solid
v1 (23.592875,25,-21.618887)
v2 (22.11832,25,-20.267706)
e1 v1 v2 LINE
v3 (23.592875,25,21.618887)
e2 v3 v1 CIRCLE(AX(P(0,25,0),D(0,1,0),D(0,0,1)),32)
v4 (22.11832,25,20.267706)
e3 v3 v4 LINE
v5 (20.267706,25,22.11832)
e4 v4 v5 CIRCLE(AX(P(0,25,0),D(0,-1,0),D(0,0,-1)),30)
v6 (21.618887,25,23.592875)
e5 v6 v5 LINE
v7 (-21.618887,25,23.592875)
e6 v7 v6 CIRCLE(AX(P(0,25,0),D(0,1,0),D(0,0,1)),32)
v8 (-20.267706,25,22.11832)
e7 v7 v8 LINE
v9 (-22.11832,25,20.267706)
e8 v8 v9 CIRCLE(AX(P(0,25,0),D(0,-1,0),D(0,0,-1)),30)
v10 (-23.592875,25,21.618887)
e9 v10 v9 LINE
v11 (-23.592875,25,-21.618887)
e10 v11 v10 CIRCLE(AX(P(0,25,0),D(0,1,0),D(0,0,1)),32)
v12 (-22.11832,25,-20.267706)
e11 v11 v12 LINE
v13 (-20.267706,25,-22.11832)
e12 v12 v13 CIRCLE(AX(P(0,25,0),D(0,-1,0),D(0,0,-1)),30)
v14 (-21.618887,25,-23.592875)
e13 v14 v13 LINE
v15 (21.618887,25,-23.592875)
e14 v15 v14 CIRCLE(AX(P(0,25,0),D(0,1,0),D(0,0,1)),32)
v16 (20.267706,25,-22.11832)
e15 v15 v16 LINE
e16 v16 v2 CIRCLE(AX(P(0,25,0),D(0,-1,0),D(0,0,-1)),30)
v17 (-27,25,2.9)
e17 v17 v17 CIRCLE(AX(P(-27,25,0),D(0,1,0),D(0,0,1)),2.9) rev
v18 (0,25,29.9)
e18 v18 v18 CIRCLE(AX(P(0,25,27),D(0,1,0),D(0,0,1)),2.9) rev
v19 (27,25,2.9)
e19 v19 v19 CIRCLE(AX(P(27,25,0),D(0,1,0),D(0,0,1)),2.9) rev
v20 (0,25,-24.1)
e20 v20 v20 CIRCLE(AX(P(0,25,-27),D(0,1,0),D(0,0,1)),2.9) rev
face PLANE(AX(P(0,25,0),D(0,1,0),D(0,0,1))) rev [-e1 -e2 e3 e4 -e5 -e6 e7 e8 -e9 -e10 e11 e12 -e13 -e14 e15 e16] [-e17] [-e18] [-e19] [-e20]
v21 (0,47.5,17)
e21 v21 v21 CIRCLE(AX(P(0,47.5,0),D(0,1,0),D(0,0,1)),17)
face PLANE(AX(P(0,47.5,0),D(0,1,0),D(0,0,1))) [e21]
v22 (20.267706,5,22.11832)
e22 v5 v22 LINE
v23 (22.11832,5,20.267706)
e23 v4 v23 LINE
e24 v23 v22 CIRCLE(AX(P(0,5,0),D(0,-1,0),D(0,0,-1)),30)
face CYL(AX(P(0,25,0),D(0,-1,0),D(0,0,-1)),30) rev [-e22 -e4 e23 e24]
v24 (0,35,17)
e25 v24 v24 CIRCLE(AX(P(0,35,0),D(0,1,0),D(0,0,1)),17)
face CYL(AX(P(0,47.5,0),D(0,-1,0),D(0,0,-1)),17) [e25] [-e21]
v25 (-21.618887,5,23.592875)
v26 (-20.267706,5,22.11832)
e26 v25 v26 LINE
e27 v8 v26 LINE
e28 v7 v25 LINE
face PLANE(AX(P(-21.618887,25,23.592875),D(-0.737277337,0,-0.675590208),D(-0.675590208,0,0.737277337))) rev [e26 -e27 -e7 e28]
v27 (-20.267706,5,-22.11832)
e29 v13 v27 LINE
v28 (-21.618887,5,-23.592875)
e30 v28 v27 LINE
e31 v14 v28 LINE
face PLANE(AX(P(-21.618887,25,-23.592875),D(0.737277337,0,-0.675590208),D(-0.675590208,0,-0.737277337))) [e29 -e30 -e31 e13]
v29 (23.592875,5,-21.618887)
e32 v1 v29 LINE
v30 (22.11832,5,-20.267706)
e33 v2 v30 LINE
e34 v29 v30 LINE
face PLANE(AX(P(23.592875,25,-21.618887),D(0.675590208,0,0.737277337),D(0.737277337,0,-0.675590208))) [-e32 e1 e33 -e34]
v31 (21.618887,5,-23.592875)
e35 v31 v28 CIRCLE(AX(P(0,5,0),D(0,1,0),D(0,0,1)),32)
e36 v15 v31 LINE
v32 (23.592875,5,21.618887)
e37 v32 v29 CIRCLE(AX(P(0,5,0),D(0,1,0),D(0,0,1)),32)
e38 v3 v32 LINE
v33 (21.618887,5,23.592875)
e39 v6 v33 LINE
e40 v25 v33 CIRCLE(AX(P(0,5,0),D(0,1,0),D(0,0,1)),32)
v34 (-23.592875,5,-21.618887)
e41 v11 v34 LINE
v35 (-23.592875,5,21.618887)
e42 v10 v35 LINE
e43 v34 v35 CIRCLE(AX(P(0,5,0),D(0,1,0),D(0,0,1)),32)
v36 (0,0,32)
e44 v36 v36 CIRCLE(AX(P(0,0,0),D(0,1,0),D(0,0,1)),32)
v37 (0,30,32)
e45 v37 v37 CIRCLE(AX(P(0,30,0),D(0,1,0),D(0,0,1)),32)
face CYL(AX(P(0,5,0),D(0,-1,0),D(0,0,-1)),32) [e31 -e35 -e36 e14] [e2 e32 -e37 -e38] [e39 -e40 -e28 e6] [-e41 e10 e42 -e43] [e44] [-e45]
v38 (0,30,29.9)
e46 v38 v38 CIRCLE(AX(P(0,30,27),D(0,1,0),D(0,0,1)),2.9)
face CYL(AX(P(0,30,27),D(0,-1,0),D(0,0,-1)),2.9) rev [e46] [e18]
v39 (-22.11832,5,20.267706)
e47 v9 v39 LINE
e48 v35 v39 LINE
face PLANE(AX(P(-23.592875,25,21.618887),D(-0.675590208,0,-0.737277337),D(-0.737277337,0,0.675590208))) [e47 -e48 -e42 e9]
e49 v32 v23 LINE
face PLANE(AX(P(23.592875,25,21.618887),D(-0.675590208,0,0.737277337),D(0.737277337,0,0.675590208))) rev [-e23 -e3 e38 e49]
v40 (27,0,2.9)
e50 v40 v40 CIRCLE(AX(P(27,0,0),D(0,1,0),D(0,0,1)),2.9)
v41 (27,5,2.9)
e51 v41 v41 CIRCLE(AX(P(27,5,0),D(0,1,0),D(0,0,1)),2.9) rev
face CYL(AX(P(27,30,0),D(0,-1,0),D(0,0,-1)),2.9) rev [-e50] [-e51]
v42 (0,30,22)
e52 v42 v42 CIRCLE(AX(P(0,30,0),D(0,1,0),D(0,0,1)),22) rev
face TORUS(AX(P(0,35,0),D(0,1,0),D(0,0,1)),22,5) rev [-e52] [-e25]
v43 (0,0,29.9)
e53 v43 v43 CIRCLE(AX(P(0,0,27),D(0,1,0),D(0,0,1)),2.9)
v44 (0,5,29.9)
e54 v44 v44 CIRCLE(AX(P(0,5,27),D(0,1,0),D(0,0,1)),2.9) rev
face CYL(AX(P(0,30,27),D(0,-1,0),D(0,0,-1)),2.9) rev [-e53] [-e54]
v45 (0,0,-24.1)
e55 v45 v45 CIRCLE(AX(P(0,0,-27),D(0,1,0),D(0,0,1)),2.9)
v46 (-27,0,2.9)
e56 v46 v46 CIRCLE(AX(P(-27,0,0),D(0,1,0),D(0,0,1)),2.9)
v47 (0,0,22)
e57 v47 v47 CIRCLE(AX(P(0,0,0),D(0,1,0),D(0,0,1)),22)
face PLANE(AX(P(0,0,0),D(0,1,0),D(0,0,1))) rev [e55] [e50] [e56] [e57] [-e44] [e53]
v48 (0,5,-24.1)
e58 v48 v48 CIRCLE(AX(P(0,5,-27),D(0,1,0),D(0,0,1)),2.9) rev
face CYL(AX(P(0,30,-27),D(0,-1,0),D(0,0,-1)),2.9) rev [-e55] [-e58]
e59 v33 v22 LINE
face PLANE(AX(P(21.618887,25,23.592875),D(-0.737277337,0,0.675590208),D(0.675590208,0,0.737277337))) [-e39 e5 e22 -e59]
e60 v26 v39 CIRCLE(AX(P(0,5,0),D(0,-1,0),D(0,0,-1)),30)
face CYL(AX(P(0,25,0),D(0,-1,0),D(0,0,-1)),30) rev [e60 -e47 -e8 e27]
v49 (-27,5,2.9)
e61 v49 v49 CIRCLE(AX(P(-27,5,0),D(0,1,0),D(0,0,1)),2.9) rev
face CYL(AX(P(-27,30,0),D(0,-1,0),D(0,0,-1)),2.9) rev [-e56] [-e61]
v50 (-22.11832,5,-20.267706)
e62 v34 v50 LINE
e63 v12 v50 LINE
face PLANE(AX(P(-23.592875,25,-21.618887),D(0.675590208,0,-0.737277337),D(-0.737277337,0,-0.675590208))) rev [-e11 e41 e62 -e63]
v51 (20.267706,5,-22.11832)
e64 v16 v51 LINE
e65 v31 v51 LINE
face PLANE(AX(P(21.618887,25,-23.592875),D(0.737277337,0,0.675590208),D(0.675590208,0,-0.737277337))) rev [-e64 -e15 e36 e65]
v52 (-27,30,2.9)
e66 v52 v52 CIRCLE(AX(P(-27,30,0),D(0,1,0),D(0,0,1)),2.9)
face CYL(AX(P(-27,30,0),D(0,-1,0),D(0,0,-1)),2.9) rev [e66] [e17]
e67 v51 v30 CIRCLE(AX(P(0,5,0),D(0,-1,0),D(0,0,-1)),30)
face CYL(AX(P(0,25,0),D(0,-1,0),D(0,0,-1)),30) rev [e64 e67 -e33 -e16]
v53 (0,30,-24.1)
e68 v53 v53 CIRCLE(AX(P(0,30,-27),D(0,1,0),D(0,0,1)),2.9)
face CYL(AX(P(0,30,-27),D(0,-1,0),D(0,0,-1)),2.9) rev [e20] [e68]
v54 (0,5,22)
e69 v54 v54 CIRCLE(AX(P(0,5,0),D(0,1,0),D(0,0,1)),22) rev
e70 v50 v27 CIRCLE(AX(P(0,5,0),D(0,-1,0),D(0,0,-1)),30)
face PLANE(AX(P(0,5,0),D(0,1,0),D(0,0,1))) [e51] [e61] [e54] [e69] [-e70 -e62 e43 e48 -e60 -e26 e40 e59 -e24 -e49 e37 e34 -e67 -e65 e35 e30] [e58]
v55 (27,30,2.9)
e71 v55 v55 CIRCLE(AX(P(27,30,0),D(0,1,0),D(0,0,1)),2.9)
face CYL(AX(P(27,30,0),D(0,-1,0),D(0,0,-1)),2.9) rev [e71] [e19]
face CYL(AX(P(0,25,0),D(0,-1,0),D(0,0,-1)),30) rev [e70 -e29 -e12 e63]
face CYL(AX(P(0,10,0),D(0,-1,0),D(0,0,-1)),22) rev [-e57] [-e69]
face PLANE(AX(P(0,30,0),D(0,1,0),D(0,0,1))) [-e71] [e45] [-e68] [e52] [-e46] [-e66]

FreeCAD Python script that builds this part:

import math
import FreeCAD as App
import Part
import Sketcher

V = App.Vector
Q = App.Units.Quantity


def edges_at(feature, points):
    """Names of the edges that pass closest to the given points."""
    edges = feature.Shape.Edges
    near = lambda p: min(range(len(edges)), key=lambda i: edges[i].distToShape(Part.Vertex(*p))[0])
    return sorted({f"Edge{near(p) + 1}" for p in points})

doc = App.newDocument("Part")
body = doc.addObject("PartDesign::Body", "Body")

# Sketch on XZ plane
sketch1 = doc.addObject("Sketcher::SketchObject", "Sketch")
body.addObject(sketch1)
sketch1.AttachmentSupport = (doc.XZ_Plane, [""])
sketch1.MapMode = "FlatFace"
sketch1.addGeometry(Part.Circle(V(0, 0, 0), V(0, 0, 1), 32), False)
sketch1.addConstraint(Sketcher.Constraint("Coincident", 0, 3, -1, 1))
sketch1.addConstraint(Sketcher.Constraint("Diameter", 0, Q("64 mm")))
pad1 = doc.addObject("PartDesign::Pad", "Pad")
body.addObject(pad1)
pad1.Profile = sketch1
pad1.Length = 5
pad1.Reversed = True

# Sketch on XZ plane
sketch2 = doc.addObject("Sketcher::SketchObject", "Sketch001")
body.addObject(sketch2)
sketch2.AttachmentSupport = (doc.XZ_Plane, [""])
sketch2.MapMode = "FlatFace"
sketch2.AttachmentOffset = App.Placement(V(0, 0, -5), App.Rotation())
sketch2.addGeometry(Part.LineSegment(V(-23.6, -21.6, 0), V(-22.1, -20.3, 0)), False)
sketch2.addGeometry(Part.ArcOfCircle(Part.Circle(V(0, 0, 0), V(0, 0, 1), 30), math.radians(-137.5), math.radians(-132.5)), False)
sketch2.addGeometry(Part.LineSegment(V(-20.3, -22.1, 0), V(-21.6, -23.6, 0)), False)
sketch2.addGeometry(Part.ArcOfCircle(Part.Circle(V(0, 0, 0), V(0, 0, 1), 32), math.radians(-137.5), math.radians(-132.5)), False)
sketch2.addGeometry(Part.LineSegment(V(22.1, -20.3, 0), V(23.6, -21.6, 0)), False)
sketch2.addGeometry(Part.ArcOfCircle(Part.Circle(V(0, 0, 0), V(0, 0, 1), 32), math.radians(-47.5), math.radians(-42.5)), False)
sketch2.addGeometry(Part.LineSegment(V(21.6, -23.6, 0), V(20.3, -22.1, 0)), False)
sketch2.addGeometry(Part.ArcOfCircle(Part.Circle(V(0, 0, 0), V(0, 0, 1), 30), math.radians(-47.5), math.radians(-42.5)), False)
sketch2.addGeometry(Part.LineSegment(V(20.3, 22.1, 0), V(21.6, 23.6, 0)), False)
sketch2.addGeometry(Part.ArcOfCircle(Part.Circle(V(0, 0, 0), V(0, 0, 1), 32), math.radians(42.5), math.radians(47.5)), False)
sketch2.addGeometry(Part.LineSegment(V(23.6, 21.6, 0), V(22.1, 20.3, 0)), False)
sketch2.addGeometry(Part.ArcOfCircle(Part.Circle(V(0, 0, 0), V(0, 0, 1), 30), math.radians(42.5), math.radians(47.5)), False)
sketch2.addGeometry(Part.LineSegment(V(-22.1, 20.3, 0), V(-23.6, 21.6, 0)), False)
sketch2.addGeometry(Part.ArcOfCircle(Part.Circle(V(0, 0, 0), V(0, 0, 1), 32), math.radians(132.5), math.radians(137.5)), False)
sketch2.addGeometry(Part.LineSegment(V(-21.6, 23.6, 0), V(-20.3, 22.1, 0)), False)
sketch2.addGeometry(Part.ArcOfCircle(Part.Circle(V(0, 0, 0), V(0, 0, 1), 30), math.radians(132.5), math.radians(137.5)), False)
sketch2.addConstraint(Sketcher.Constraint("Coincident", 0, 2, 1, 1))
sketch2.addConstraint(Sketcher.Constraint("Coincident", 1, 2, 2, 1))
sketch2.addConstraint(Sketcher.Constraint("Coincident", 2, 2, 3, 2))
sketch2.addConstraint(Sketcher.Constraint("Coincident", 3, 1, 0, 1))
sketch2.addConstraint(Sketcher.Constraint("Coincident", 4, 2, 5, 2))
sketch2.addConstraint(Sketcher.Constraint("Coincident", 5, 1, 6, 1))
sketch2.addConstraint(Sketcher.Constraint("Coincident", 6, 2, 7, 1))
sketch2.addConstraint(Sketcher.Constraint("Coincident", 7, 2, 4, 1))
sketch2.addConstraint(Sketcher.Constraint("Coincident", 8, 2, 9, 2))
sketch2.addConstraint(Sketcher.Constraint("Coincident", 9, 1, 10, 1))
sketch2.addConstraint(Sketcher.Constraint("Coincident", 10, 2, 11, 1))
sketch2.addConstraint(Sketcher.Constraint("Coincident", 11, 2, 8, 1))
sketch2.addConstraint(Sketcher.Constraint("Coincident", 12, 2, 13, 2))
sketch2.addConstraint(Sketcher.Constraint("Coincident", 13, 1, 14, 1))
sketch2.addConstraint(Sketcher.Constraint("Coincident", 14, 2, 15, 1))
sketch2.addConstraint(Sketcher.Constraint("Coincident", 15, 2, 12, 1))
sketch2.addConstraint(Sketcher.Constraint("Coincident", 1, 3, -1, 1))
sketch2.addConstraint(Sketcher.Constraint("Coincident", 3, 3, -1, 1))
sketch2.addConstraint(Sketcher.Constraint("Coincident", 5, 3, -1, 1))
sketch2.addConstraint(Sketcher.Constraint("Coincident", 7, 3, -1, 1))
sketch2.addConstraint(Sketcher.Constraint("Coincident", 9, 3, -1, 1))
sketch2.addConstraint(Sketcher.Constraint("Coincident", 11, 3, -1, 1))
sketch2.addConstraint(Sketcher.Constraint("Coincident", 13, 3, -1, 1))
sketch2.addConstraint(Sketcher.Constraint("Coincident", 15, 3, -1, 1))
sketch2.addConstraint(Sketcher.Constraint("Equal", 3, 5))
sketch2.addConstraint(Sketcher.Constraint("Equal", 1, 7))
sketch2.addConstraint(Sketcher.Constraint("Equal", 5, 9))
sketch2.addConstraint(Sketcher.Constraint("Equal", 7, 11))
sketch2.addConstraint(Sketcher.Constraint("Equal", 9, 13))
sketch2.addConstraint(Sketcher.Constraint("Equal", 11, 15))
sketch2.addConstraint(Sketcher.Constraint("Perpendicular", 2, 4))
sketch2.addConstraint(Sketcher.Constraint("Perpendicular", 0, 6))
sketch2.addConstraint(Sketcher.Constraint("Perpendicular", 4, 8))
sketch2.addConstraint(Sketcher.Constraint("Perpendicular", 6, 10))
sketch2.addConstraint(Sketcher.Constraint("Perpendicular", 8, 12))
sketch2.addConstraint(Sketcher.Constraint("Perpendicular", 10, 14))
sketch2.addConstraint(Sketcher.Constraint("Horizontal", 3, 1, 4, 2))
sketch2.addConstraint(Sketcher.Constraint("Horizontal", 2, 2, 5, 1))
sketch2.addConstraint(Sketcher.Constraint("Horizontal", 1, 2, 6, 2))
sketch2.addConstraint(Sketcher.Constraint("Horizontal", 9, 1, 12, 2))
sketch2.addConstraint(Sketcher.Constraint("Horizontal", 8, 2, 13, 1))
sketch2.addConstraint(Sketcher.Constraint("Vertical", 5, 1, 8, 2))
sketch2.addConstraint(Sketcher.Constraint("Vertical", 4, 2, 9, 1))
sketch2.addConstraint(Sketcher.Constraint("Radius", 1, Q("29.999999 mm")))
sketch2.addConstraint(Sketcher.Constraint("Radius", 3, Q("32 mm")))
sketch2.addConstraint(Sketcher.Constraint("Angle", 0, Q("42.5 deg")))
sketch2.addConstraint(Sketcher.Constraint("DistanceX", 0, 2, -1, 1, Q("22.11832 mm")))
sketch2.addConstraint(Sketcher.Constraint("DistanceY", 1, 2, -1, 1, Q("22.11832 mm")))
pad2 = doc.addObject("PartDesign::Pad", "Pad001")
body.addObject(pad2)
pad2.Profile = sketch2
pad2.Length = 20
pad2.Reversed = True

# Sketch on XZ plane
sketch3 = doc.addObject("Sketcher::SketchObject", "Sketch002")
body.addObject(sketch3)
sketch3.AttachmentSupport = (doc.XZ_Plane, [""])
sketch3.MapMode = "FlatFace"
sketch3.AttachmentOffset = App.Placement(V(0, 0, -25), App.Rotation())
sketch3.addGeometry(Part.Circle(V(0, 0, 0), V(0, 0, 1), 32), False)
sketch3.addConstraint(Sketcher.Constraint("Coincident", 0, 3, -1, 1))
sketch3.addConstraint(Sketcher.Constraint("Diameter", 0, Q("64 mm")))
pad3 = doc.addObject("PartDesign::Pad", "Pad002")
body.addObject(pad3)
pad3.Profile = sketch3
pad3.Length = 5
pad3.Reversed = True

# Sketch on XZ plane
sketch4 = doc.addObject("Sketcher::SketchObject", "Sketch003")
body.addObject(sketch4)
sketch4.AttachmentSupport = (doc.XZ_Plane, [""])
sketch4.MapMode = "FlatFace"
sketch4.AttachmentOffset = App.Placement(V(0, 0, -5), App.Rotation())
sketch4.addGeometry(Part.Circle(V(27, 0, 0), V(0, 0, 1), 2.9), False)
sketch4.addGeometry(Part.Circle(V(0, 27, 0), V(0, 0, 1), 2.9), False)
sketch4.addGeometry(Part.Circle(V(0, -27, 0), V(0, 0, 1), 2.9), False)
sketch4.addGeometry(Part.Circle(V(-27, 0, 0), V(0, 0, 1), 2.9), False)
sketch4.addConstraint(Sketcher.Constraint("Equal", 0, 1))
sketch4.addConstraint(Sketcher.Constraint("Equal", 1, 2))
sketch4.addConstraint(Sketcher.Constraint("Equal", 2, 3))
sketch4.addConstraint(Sketcher.Constraint("Symmetric", 1, 3, 2, 3, -1, 1))
sketch4.addConstraint(Sketcher.Constraint("Symmetric", 0, 3, 3, 3, -1, 1))
sketch4.addConstraint(Sketcher.Constraint("PointOnObject", 0, 3, -1))
sketch4.addConstraint(Sketcher.Constraint("PointOnObject", 1, 3, -2))
sketch4.addConstraint(Sketcher.Constraint("Diameter", 0, Q("5.8 mm")))
sketch4.addConstraint(Sketcher.Constraint("DistanceX", -1, 1, 0, 3, Q("27 mm")))
sketch4.addConstraint(Sketcher.Constraint("DistanceY", -1, 1, 1, 3, Q("27 mm")))
pocket1 = doc.addObject("PartDesign::Pocket", "Pocket")
body.addObject(pocket1)
pocket1.Profile = sketch4
pocket1.Type = "ThroughAll"
pocket1.Midplane = True

# Sketch on XZ plane
sketch5 = doc.addObject("Sketcher::SketchObject", "Sketch004")
body.addObject(sketch5)
sketch5.AttachmentSupport = (doc.XZ_Plane, [""])
sketch5.MapMode = "FlatFace"
sketch5.addGeometry(Part.Circle(V(0, 0, 0), V(0, 0, 1), 22), False)
sketch5.addConstraint(Sketcher.Constraint("Coincident", 0, 3, -1, 1))
sketch5.addConstraint(Sketcher.Constraint("Diameter", 0, Q("44 mm")))
pocket2 = doc.addObject("PartDesign::Pocket", "Pocket001")
body.addObject(pocket2)
pocket2.Profile = sketch5
pocket2.Length = 10

# Sketch on XZ plane
sketch6 = doc.addObject("Sketcher::SketchObject", "Sketch005")
body.addObject(sketch6)
sketch6.AttachmentSupport = (doc.XZ_Plane, [""])
sketch6.MapMode = "FlatFace"
sketch6.AttachmentOffset = App.Placement(V(0, 0, -30), App.Rotation())
sketch6.addGeometry(Part.Circle(V(0, 0, 0), V(0, 0, 1), 17), False)
sketch6.addConstraint(Sketcher.Constraint("Coincident", 0, 3, -1, 1))
sketch6.addConstraint(Sketcher.Constraint("Diameter", 0, Q("34 mm")))
pad4 = doc.addObject("PartDesign::Pad", "Pad003")
body.addObject(pad4)
pad4.Profile = sketch6
pad4.Length = 17.5
pad4.Reversed = True
doc.recompute()

fillet = doc.addObject("PartDesign::Fillet", "Fillet")
body.addObject(fillet)
fillet.Base = (pad4, edges_at(pad4, [(0, 30, -17)]))
fillet.Radius = 5

doc.recompute()
